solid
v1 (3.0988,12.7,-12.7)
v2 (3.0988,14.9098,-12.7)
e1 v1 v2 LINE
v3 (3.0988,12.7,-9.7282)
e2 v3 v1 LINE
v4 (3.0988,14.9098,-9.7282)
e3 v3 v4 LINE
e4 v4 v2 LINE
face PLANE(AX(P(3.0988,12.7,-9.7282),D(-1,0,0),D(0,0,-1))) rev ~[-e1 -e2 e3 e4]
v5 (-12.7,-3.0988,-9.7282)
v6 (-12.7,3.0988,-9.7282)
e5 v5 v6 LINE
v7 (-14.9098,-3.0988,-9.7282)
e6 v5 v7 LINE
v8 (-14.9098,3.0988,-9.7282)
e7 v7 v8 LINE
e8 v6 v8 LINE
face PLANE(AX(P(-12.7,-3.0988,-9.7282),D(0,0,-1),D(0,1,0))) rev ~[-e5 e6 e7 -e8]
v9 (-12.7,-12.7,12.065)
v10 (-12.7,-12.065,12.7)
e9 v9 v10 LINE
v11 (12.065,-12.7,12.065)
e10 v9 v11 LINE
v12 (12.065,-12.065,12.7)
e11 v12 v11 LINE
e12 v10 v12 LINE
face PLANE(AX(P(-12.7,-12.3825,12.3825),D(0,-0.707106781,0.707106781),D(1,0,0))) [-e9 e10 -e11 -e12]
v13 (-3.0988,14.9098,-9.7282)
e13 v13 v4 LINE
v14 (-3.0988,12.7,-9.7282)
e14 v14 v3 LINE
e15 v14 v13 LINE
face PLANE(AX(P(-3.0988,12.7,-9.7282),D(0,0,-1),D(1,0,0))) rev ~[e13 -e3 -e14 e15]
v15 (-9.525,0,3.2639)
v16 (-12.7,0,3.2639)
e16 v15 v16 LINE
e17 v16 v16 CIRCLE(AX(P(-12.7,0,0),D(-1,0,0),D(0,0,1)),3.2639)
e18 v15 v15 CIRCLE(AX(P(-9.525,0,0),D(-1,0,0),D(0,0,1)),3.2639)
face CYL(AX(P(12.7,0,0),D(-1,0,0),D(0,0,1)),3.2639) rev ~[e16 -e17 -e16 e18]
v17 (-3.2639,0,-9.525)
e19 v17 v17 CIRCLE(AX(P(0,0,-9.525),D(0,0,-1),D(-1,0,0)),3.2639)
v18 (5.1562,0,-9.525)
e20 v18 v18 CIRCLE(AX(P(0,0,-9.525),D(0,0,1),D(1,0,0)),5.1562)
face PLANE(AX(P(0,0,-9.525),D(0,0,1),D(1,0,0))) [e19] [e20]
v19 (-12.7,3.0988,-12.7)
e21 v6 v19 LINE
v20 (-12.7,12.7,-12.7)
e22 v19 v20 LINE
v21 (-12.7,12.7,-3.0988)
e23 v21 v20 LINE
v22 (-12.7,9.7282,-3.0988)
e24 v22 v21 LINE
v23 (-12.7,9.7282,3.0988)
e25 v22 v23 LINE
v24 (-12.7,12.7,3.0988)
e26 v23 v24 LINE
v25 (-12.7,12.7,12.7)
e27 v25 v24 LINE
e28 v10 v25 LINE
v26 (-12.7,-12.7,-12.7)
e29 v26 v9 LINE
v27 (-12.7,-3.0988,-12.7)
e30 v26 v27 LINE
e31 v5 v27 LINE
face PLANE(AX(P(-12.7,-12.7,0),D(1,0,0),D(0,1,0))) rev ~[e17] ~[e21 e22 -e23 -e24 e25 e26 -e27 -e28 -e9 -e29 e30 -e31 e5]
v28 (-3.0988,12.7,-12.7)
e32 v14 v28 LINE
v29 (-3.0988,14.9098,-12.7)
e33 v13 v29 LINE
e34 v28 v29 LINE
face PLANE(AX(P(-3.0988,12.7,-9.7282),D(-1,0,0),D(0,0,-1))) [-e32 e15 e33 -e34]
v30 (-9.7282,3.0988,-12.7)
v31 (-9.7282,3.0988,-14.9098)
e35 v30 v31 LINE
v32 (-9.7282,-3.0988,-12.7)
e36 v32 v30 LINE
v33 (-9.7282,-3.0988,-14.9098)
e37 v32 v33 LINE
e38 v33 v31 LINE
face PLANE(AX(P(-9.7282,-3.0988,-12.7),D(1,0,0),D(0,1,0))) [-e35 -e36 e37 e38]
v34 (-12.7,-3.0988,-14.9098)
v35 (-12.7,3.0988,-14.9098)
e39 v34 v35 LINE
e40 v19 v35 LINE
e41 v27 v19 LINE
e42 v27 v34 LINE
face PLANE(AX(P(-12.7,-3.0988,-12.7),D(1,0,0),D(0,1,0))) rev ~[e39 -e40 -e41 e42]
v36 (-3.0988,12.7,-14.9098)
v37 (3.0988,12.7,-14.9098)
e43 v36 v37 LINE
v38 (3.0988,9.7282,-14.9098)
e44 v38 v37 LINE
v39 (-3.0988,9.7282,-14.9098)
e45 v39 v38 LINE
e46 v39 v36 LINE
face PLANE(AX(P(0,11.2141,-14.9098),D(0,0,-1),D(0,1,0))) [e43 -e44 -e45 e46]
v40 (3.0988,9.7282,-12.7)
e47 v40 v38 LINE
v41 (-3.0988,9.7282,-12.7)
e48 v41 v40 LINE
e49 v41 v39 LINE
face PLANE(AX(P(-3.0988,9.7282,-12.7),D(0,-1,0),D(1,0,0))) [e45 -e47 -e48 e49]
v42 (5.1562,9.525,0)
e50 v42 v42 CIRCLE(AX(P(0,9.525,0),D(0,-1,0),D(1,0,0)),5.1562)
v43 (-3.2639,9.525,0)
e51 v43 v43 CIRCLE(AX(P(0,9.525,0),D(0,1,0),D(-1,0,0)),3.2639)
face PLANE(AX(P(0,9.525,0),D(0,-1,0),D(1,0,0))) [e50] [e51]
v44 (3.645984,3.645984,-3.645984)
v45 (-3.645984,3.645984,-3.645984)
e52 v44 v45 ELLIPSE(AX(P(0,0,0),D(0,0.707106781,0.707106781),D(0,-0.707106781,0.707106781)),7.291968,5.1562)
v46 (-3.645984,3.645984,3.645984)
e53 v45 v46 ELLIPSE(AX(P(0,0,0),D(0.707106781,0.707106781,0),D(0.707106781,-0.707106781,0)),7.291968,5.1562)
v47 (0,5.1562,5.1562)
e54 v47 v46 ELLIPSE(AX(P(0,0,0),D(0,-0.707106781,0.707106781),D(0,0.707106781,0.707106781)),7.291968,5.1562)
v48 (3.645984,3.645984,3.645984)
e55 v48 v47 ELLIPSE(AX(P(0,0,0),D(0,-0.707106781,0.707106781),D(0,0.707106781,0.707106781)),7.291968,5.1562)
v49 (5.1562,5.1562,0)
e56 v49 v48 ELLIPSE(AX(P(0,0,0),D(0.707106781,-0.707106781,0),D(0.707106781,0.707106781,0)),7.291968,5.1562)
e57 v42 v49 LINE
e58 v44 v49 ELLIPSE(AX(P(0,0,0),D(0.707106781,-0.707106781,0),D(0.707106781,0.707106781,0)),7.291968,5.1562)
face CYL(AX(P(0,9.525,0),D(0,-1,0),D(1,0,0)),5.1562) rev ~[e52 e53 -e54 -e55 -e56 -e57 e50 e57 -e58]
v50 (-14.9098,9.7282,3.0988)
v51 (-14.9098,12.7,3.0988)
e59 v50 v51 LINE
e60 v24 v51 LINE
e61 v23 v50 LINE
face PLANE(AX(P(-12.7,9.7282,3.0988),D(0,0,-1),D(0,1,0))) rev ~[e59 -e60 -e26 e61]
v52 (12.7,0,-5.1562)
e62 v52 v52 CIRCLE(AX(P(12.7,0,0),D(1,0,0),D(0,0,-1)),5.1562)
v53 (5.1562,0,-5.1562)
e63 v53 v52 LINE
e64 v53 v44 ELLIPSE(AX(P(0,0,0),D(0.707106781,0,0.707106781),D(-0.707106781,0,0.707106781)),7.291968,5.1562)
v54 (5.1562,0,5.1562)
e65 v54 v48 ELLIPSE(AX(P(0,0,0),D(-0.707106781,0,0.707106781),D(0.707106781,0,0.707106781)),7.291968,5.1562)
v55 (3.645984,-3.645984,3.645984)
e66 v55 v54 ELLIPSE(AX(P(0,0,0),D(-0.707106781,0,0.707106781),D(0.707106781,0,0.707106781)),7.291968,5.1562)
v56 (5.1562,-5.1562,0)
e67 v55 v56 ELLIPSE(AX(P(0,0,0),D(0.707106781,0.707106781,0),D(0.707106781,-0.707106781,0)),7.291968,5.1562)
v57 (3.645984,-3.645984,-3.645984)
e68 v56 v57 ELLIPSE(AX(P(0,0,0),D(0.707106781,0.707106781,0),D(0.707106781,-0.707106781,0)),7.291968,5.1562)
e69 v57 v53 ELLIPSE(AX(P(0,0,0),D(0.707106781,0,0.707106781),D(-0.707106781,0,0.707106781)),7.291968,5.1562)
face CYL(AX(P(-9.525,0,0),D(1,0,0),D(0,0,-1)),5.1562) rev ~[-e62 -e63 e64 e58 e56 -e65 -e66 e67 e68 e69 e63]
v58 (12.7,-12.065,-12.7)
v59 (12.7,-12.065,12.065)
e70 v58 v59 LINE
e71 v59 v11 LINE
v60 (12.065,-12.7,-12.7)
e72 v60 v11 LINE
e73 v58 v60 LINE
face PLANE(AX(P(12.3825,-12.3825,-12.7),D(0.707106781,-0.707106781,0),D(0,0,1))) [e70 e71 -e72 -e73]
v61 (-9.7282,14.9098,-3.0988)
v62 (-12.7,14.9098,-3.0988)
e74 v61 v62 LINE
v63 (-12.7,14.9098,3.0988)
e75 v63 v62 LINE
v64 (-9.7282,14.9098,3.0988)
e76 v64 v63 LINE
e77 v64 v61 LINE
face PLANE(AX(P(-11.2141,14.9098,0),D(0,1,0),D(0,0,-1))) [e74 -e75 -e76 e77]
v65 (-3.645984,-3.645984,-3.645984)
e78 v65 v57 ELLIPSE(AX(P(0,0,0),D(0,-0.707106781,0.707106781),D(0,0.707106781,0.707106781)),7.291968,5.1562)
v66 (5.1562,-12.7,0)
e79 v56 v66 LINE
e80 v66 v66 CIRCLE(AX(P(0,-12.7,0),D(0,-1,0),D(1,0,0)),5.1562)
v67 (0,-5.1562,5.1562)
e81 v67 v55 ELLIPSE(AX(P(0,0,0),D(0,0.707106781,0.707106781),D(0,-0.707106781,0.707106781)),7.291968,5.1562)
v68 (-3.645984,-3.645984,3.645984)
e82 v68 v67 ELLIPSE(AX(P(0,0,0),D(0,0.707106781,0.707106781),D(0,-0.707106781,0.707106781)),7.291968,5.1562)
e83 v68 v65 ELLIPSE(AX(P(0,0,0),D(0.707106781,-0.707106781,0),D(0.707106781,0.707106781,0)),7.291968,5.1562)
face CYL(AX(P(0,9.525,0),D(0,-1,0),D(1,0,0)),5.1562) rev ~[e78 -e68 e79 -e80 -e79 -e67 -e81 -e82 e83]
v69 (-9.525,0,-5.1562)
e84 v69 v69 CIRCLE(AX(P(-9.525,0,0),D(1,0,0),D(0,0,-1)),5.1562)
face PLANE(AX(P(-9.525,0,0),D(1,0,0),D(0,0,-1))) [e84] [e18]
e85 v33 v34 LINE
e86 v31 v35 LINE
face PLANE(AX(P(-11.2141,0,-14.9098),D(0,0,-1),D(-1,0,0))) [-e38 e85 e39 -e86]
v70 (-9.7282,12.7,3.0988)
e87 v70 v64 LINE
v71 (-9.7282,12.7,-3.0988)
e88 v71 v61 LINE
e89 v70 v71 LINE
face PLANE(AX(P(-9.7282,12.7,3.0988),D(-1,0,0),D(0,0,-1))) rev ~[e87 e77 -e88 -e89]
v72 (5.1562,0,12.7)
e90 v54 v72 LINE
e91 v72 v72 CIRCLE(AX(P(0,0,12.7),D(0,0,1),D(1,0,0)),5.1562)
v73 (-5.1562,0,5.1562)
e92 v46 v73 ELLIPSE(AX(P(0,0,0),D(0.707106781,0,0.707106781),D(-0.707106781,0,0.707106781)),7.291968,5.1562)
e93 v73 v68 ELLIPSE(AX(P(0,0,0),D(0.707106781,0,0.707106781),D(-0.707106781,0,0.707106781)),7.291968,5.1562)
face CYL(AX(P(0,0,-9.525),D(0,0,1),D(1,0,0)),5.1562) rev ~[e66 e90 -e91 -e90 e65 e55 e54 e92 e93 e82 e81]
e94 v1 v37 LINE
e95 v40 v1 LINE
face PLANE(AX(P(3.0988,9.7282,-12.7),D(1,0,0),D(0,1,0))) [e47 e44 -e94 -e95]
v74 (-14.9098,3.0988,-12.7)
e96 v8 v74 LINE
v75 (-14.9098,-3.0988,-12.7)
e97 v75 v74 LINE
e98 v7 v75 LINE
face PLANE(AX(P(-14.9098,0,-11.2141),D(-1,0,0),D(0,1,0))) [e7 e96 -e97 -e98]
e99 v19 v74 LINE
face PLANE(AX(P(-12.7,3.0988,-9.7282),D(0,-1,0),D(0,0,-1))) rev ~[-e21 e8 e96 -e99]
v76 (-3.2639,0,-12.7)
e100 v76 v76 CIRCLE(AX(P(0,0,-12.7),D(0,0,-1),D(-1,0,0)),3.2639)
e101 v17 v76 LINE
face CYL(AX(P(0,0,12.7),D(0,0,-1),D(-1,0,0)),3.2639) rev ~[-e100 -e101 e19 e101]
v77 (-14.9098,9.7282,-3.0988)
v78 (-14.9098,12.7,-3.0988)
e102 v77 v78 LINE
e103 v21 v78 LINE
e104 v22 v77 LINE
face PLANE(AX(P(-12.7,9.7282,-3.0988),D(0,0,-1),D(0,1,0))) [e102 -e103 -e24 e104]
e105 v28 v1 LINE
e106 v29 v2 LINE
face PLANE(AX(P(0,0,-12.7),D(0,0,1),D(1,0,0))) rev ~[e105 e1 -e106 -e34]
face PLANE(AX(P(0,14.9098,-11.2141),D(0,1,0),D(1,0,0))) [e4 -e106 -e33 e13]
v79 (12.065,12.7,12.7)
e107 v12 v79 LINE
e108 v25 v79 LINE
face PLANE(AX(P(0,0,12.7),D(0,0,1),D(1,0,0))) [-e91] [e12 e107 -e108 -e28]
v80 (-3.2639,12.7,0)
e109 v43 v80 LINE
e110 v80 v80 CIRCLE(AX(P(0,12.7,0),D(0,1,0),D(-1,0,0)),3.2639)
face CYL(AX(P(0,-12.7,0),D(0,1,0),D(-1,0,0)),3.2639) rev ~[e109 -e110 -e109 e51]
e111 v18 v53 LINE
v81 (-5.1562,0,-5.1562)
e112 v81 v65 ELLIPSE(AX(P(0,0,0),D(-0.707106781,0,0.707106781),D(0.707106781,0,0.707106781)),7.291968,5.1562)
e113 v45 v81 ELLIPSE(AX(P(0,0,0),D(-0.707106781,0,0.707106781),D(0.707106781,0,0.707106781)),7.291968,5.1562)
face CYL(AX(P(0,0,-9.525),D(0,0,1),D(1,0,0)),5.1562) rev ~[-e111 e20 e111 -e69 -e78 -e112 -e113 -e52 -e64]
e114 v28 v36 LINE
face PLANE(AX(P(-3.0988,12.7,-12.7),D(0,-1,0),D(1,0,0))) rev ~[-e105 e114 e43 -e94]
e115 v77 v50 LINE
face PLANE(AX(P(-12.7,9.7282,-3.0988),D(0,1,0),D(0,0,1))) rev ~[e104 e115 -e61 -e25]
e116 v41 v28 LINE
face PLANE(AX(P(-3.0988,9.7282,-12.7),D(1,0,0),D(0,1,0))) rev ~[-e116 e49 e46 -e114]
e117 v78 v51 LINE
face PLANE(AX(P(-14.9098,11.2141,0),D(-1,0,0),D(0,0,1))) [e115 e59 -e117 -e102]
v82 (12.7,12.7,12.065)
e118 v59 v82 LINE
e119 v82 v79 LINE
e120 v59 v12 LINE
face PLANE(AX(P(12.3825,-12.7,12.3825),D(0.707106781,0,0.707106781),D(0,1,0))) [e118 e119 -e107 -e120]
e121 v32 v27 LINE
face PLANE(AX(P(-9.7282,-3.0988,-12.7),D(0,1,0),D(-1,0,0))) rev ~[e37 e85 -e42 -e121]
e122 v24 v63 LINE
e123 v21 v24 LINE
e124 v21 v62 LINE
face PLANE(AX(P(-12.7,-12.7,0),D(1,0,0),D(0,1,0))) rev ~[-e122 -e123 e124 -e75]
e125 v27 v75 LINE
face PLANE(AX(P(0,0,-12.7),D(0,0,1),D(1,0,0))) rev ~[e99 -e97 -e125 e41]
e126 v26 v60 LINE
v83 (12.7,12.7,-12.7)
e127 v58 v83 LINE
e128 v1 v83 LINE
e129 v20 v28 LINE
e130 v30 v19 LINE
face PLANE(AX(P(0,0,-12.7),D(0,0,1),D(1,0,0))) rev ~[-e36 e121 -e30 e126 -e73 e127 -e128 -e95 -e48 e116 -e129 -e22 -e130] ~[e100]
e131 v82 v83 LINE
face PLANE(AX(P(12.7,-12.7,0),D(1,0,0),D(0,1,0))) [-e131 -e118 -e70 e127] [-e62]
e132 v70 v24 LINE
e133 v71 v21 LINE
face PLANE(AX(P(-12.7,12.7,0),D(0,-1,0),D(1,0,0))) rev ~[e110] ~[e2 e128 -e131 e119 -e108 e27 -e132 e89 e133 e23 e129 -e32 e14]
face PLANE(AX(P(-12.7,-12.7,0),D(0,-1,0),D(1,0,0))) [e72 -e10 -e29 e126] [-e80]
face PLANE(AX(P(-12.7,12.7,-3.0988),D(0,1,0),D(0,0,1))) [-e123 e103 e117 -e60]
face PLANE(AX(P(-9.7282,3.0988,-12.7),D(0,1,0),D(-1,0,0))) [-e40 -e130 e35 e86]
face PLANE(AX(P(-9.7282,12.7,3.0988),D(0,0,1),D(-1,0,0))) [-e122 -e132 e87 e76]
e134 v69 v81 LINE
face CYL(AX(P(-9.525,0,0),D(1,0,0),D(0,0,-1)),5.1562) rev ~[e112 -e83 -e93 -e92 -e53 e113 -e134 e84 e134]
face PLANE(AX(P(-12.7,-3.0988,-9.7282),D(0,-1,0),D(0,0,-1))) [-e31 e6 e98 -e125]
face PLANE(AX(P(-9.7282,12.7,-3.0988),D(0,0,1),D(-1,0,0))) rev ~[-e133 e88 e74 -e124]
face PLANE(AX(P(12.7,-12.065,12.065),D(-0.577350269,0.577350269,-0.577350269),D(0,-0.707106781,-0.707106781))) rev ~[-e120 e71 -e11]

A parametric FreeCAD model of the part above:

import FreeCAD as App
import Part
import Sketcher
Q = App.Units.Quantity


def edges_at(feature, points):
    """Names of the edges that pass closest to the given points."""
    edges = feature.Shape.Edges
    near = lambda p: min(range(len(edges)), key=lambda i: edges[i].distToShape(Part.Vertex(*p))[0])
    return sorted({f"Edge{near(p) + 1}" for p in points})


def add_polygon(sketch, points):
    """Adds a closed chain of lines whose ends are joined by coincident constraints."""
    first, n = sketch.GeometryCount, len(points)
    for a, b in zip(points, points[1:] + points[:1]):
        sketch.addGeometry(Part.LineSegment(App.Vector(*a, 0), App.Vector(*b, 0)), False)
    for i in range(n):
        sketch.addConstraint(Sketcher.Constraint("Coincident", first + i, 2, first + (i + 1) % n, 1))

doc = App.newDocument("Part")
body = doc.addObject("PartDesign::Body", "Body")

sketch1 = body.newObject("Sketcher::SketchObject", "Sketch")
sketch1.AttachmentSupport = (doc.getObject("XY_Plane"), [""])
sketch1.MapMode = "FlatFace"
add_polygon(sketch1, [(-13, 13), (-13, -13), (13, -13), (13, 13)])
sketch1.addConstraint([
    Sketcher.Constraint("Vertical", 0),
    Sketcher.Constraint("Horizontal", 1),
    Sketcher.Constraint("Vertical", 2),
    Sketcher.Constraint("Horizontal", 3),
    Sketcher.Constraint("Symmetric", 0, 2, 2, 2, -1, 1),
    Sketcher.Constraint("Equal", 3, 0),
    Sketcher.Constraint("DistanceX", 1, 1, 1, 2, Q("1 in")),
])
pad1 = body.newObject("PartDesign::Pad", "Pad")
pad1.Profile = sketch1
pad1.Length = Q("1 in")
pad1.Midplane = True

sketch2 = body.newObject("Sketcher::SketchObject", "Sketch001")
sketch2.AttachmentSupport = (doc.getObject("XY_Plane"), [""])
sketch2.MapMode = "FlatFace"
sketch2.AttachmentOffset = App.Placement(App.Vector(0, 0, 0.5 * 25.4), App.Rotation())
sketch2.addGeometry(Part.Circle(App.Vector(0, 0, 0), App.Vector(0, 0, 1), 3.3), False)
sketch2.addConstraint([
    Sketcher.Constraint("Coincident", 0, 3, -1, 1),
    Sketcher.Constraint("Diameter", 0, Q("0.257 in")),
])
doc.recompute()
hole = body.newObject("PartDesign::Hole", "Hole")
hole.Profile = sketch2
hole.ThreadType = "None"
hole.Diameter = Q("0.257 in")
hole.DepthType = "Dimension"
hole.Depth = 100
hole.DrillPoint = "Flat"
hole.HoleCutType = "Counterbore"
hole.HoleCutDiameter = Q("0.406 in")
hole.HoleCutDepth = Q("0.875 in")

sketch3 = body.newObject("Sketcher::SketchObject", "Sketch002")
sketch3.AttachmentSupport = (doc.getObject("YZ_Plane"), [""])
sketch3.MapMode = "FlatFace"
sketch3.AttachmentOffset = App.Placement(App.Vector(0, 0, 0.5 * 25.4), App.Rotation())
sketch3.addGeometry(Part.Circle(App.Vector(0, 0, 0), App.Vector(0, 0, 1), 3.3), False)
sketch3.addConstraint([
    Sketcher.Constraint("Coincident", 0, 3, -1, 1),
    Sketcher.Constraint("Diameter", 0, Q("0.257 in")),
])
doc.recompute()
hole2 = body.newObject("PartDesign::Hole", "Hole001")
hole2.Profile = sketch3
hole2.ThreadType = "None"
hole2.Diameter = Q("0.257 in")
hole2.DepthType = "Dimension"
hole2.Depth = 100
hole2.DrillPoint = "Flat"
hole2.HoleCutType = "Counterbore"
hole2.HoleCutDiameter = Q("0.406 in")
hole2.HoleCutDepth = Q("0.875 in")

sketch4 = body.newObject("Sketcher::SketchObject", "Sketch003")
sketch4.AttachmentSupport = (doc.getObject("XZ_Plane"), [""])
sketch4.MapMode = "FlatFace"
sketch4.AttachmentOffset = App.Placement(App.Vector(0, 0, 0.5 * 25.4), App.Rotation())
sketch4.addGeometry(Part.Circle(App.Vector(0, 0, 0), App.Vector(0, 0, 1), 3.3), False)
sketch4.addConstraint([
    Sketcher.Constraint("Coincident", 0, 3, -1, 1),
    Sketcher.Constraint("Diameter", 0, Q("0.257 in")),
])
doc.recompute()
hole3 = body.newObject("PartDesign::Hole", "Hole002")
hole3.Profile = sketch4
hole3.ThreadType = "None"
hole3.Diameter = Q("0.257 in")
hole3.DepthType = "Dimension"
hole3.Depth = 100
hole3.DrillPoint = "Flat"
hole3.HoleCutType = "Counterbore"
hole3.HoleCutDiameter = Q("0.406 in")
hole3.HoleCutDepth = Q("0.875 in")

sketch5 = body.newObject("Sketcher::SketchObject", "Sketch004")
sketch5.AttachmentSupport = (doc.getObject("XZ_Plane"), [""])
sketch5.MapMode = "FlatFace"
sketch5.AttachmentOffset = App.Placement(App.Vector(0, 0, -0.5 * 25.4), App.Rotation())
add_polygon(sketch5, [(-3.1, -12.7), (-3.1, -9.7), (3.1, -9.7), (3.1, -12.7)])
sketch5.addConstraint([
    Sketcher.Constraint("Vertical", 0),
    Sketcher.Constraint("Horizontal", 1),
    Sketcher.Constraint("Vertical", 2),
    Sketcher.Constraint("Horizontal", 3),
    Sketcher.Constraint("DistanceY", 2, 2, -1, 1, Q("0.5 in")),
    Sketcher.Constraint("DistanceX", 1, 1, 1, 2, Q("0.244 in")),
    Sketcher.Constraint("DistanceY", 0, 1, 0, 2, Q("0.117 in")),
    Sketcher.Constraint("DistanceX", 0, 2, -1, 1, Q("0.122 in")),
])
pad2 = body.newObject("PartDesign::Pad", "Pad001")
pad2.Profile = sketch5
pad2.Length = Q("0.087 in")
pad2.Reversed = True
doc.recompute()

polarpattern = body.newObject("PartDesign::PolarPattern", "PolarPattern")
polarpattern.Originals = [pad2]
polarpattern.Axis = (doc.getObject("Y_Axis"), [""])
polarpattern.Angle = 270
polarpattern.Occurrences = 2
polarpattern.Reversed = True
body.Tip = polarpattern

sketch6 = body.newObject("Sketcher::SketchObject", "Sketch005")
sketch6.AttachmentSupport = (doc.getObject("YZ_Plane"), [""])
sketch6.MapMode = "FlatFace"
sketch6.AttachmentOffset = App.Placement(App.Vector(0, 0, -0.5 * 25.4), App.Rotation())
add_polygon(sketch6, [(12.7, -3.1), (9.7, -3.1), (9.7, 3.1), (12.7, 3.1)])
sketch6.addConstraint([
    Sketcher.Constraint("Horizontal", 0),
    Sketcher.Constraint("Vertical", 1),
    Sketcher.Constraint("Horizontal", 2),
    Sketcher.Constraint("Vertical", 3),
    Sketcher.Constraint("DistanceX", -1, 1, 2, 2, Q("0.5 in")),
    Sketcher.Constraint("DistanceX", 0, 2, 0, 1, Q("0.117 in")),
    Sketcher.Constraint("DistanceY", 1, 1, 1, 2, Q("0.244 in")),
    Sketcher.Constraint("DistanceY", 0, 2, -1, 1, Q("0.122 in")),
])
pad3 = body.newObject("PartDesign::Pad", "Pad002")
pad3.Profile = sketch6
pad3.Length = Q("0.087 in")
pad3.Reversed = True
doc.recompute()

polarpattern2 = body.newObject("PartDesign::PolarPattern", "PolarPattern001")
polarpattern2.Originals = [pad3]
polarpattern2.Axis = (doc.getObject("X_Axis"), [""])
polarpattern2.Angle = 270
polarpattern2.Occurrences = 2
body.Tip = polarpattern2

sketch7 = body.newObject("Sketcher::SketchObject", "Sketch006")
sketch7.AttachmentSupport = (doc.getObject("XY_Plane"), [""])
sketch7.MapMode = "FlatFace"
sketch7.AttachmentOffset = App.Placement(App.Vector(0, 0, -0.5 * 25.4), App.Rotation())
add_polygon(sketch7, [(-9.7, 3.1), (-9.7, -3.1), (-12.7, -3.1), (-12.7, 3.1)])
sketch7.addConstraint([
    Sketcher.Constraint("Vertical", 0),
    Sketcher.Constraint("Horizontal", 1),
    Sketcher.Constraint("Vertical", 2),
    Sketcher.Constraint("Horizontal", 3),
    Sketcher.Constraint("DistanceX", 1, 2, -1, 1, Q("0.5 in")),
    Sketcher.Constraint("DistanceX", 1, 2, 1, 1, Q("0.117 in")),
    Sketcher.Constraint("DistanceY", 0, 2, 0, 1, Q("0.244 in")),
    Sketcher.Constraint("DistanceY", 0, 2, -1, 1, Q("0.122 in")),
])
pad4 = body.newObject("PartDesign::Pad", "Pad003")
pad4.Profile = sketch7
pad4.Length = Q("0.087 in")
pad4.Reversed = True
doc.recompute()

polarpattern3 = body.newObject("PartDesign::PolarPattern", "PolarPattern002")
polarpattern3.Originals = [pad4]
polarpattern3.Axis = (doc.getObject("Z_Axis"), [""])
polarpattern3.Angle = 90
polarpattern3.Occurrences = 2
polarpattern3.Reversed = True
body.Tip = polarpattern3
doc.recompute()

chamfer = body.newObject("PartDesign::Chamfer", "Chamfer")
chamfer.Base = (polarpattern3, edges_at(polarpattern3, [(0, -12.7, 12.7), (12.7, 0, 12.7), (12.7, -12.7, 0)]))
chamfer.Size = Q("0.025 in")

doc.recompute()
